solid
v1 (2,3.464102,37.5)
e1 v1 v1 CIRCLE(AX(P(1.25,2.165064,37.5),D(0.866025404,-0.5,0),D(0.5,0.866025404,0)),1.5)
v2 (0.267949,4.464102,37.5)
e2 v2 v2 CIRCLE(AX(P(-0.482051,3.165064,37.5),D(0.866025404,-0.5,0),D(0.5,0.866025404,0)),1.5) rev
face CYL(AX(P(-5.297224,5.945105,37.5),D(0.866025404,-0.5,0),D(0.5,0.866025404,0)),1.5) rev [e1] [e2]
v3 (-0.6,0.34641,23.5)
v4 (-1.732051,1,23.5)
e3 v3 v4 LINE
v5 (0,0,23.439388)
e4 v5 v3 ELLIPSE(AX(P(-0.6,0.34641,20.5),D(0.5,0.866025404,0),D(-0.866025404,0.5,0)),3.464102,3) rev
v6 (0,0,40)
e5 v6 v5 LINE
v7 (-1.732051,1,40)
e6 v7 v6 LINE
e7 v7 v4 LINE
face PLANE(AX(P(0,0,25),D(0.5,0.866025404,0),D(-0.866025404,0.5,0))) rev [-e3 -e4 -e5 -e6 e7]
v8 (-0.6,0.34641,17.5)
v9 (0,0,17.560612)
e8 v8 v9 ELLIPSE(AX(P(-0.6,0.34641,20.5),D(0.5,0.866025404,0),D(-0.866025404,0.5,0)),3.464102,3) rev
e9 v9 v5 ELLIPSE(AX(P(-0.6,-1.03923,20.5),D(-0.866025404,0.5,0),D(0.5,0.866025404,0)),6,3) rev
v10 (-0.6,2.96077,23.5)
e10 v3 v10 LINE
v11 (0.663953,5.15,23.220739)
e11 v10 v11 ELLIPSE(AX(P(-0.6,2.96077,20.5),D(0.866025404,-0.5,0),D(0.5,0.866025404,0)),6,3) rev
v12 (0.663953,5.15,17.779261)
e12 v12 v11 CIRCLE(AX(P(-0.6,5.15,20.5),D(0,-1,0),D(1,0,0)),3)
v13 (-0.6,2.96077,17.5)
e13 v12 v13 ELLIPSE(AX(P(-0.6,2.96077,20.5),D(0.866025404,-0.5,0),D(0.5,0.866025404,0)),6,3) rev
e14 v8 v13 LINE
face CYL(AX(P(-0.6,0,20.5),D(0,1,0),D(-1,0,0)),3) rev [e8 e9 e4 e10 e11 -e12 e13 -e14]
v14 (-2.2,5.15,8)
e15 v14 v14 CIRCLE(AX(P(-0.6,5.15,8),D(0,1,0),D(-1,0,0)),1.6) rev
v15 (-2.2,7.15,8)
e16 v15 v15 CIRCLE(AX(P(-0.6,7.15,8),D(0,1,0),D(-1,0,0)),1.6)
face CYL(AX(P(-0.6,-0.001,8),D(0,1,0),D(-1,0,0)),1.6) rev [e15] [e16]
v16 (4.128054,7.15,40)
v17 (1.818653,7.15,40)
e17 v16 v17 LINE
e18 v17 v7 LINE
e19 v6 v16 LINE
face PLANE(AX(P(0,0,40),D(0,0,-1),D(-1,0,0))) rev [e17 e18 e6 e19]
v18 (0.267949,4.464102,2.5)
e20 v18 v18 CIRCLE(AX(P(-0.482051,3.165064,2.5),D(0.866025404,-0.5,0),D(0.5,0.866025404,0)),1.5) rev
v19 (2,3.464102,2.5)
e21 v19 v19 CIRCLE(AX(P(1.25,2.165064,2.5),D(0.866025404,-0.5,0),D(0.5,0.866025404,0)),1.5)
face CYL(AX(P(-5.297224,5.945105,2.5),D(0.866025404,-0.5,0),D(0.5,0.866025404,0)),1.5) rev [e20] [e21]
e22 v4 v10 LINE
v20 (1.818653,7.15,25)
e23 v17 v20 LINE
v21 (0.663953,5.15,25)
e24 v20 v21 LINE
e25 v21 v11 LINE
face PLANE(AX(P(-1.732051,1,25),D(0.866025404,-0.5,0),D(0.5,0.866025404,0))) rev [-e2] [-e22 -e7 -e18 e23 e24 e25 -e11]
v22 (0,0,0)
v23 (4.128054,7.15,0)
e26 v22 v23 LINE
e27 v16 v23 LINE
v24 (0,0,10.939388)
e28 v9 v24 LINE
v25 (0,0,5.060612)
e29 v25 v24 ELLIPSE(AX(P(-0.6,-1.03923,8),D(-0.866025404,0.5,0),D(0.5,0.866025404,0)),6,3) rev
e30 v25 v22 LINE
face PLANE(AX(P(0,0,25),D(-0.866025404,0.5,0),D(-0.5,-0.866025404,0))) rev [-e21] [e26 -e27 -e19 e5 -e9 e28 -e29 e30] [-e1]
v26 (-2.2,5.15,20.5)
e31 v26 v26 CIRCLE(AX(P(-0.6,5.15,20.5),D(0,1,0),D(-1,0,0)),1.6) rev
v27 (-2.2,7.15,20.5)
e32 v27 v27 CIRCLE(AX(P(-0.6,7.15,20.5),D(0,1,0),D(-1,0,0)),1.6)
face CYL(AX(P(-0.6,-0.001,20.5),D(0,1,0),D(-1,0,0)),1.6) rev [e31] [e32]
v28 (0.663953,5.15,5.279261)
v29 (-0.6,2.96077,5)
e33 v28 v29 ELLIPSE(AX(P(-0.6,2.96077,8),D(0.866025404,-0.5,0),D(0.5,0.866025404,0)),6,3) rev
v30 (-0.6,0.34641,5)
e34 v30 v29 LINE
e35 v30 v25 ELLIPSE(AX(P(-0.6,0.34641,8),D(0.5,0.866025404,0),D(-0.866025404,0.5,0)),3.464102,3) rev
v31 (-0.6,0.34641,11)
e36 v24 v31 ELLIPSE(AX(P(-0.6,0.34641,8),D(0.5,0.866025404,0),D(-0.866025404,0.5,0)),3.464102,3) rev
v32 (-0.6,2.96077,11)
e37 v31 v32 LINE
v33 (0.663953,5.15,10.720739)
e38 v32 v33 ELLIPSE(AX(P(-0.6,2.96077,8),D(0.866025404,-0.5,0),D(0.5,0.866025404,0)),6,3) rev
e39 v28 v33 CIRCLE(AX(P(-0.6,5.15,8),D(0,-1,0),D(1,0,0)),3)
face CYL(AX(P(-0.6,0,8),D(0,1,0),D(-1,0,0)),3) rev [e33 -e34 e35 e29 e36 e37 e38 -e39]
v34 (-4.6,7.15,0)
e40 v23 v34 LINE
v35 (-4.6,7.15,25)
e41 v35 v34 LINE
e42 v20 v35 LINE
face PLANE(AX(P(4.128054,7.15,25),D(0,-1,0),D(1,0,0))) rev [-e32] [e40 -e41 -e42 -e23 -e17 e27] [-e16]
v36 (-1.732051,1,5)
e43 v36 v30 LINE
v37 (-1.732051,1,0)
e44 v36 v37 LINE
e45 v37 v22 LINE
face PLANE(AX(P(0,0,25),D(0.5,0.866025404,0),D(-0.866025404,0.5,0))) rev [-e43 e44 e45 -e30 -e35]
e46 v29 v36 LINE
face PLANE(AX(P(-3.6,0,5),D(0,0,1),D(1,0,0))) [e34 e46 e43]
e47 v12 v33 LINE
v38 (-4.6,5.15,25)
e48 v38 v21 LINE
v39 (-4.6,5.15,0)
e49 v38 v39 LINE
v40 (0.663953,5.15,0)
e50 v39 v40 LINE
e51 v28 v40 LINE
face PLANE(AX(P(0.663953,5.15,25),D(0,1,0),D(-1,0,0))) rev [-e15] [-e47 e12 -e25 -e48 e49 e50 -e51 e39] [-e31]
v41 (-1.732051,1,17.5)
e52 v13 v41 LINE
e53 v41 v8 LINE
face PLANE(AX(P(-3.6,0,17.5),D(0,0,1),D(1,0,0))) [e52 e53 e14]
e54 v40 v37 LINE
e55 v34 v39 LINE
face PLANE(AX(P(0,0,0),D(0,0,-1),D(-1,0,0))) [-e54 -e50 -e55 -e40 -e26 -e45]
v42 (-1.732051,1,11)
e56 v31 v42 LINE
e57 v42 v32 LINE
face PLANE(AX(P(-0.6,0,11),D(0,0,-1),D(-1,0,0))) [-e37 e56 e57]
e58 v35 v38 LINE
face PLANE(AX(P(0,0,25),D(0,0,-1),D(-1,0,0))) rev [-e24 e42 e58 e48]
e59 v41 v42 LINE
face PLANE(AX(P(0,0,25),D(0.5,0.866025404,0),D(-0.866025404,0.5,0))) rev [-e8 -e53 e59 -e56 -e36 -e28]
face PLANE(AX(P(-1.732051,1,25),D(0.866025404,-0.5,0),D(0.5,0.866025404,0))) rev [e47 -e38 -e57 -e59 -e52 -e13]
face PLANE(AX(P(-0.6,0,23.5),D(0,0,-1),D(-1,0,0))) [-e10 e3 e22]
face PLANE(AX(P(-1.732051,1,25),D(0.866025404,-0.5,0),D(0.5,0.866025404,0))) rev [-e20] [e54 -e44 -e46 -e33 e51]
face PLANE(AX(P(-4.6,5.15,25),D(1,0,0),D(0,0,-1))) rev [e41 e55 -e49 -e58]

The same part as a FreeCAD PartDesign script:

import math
import FreeCAD as App
import Part
import Sketcher
Q = App.Units.Quantity


def add_polygon(sketch, points):
    """Adds a closed chain of lines whose ends are joined by coincident constraints."""
    first, n = sketch.GeometryCount, len(points)
    for a, b in zip(points, points[1:] + points[:1]):
        sketch.addGeometry(Part.LineSegment(App.Vector(*a, 0), App.Vector(*b, 0)), False)
    for i in range(n):
        sketch.addConstraint(Sketcher.Constraint("Coincident", first + i, 2, first + (i + 1) % n, 1))

doc = App.newDocument("Part")
body = doc.addObject("PartDesign::Body", "Body")

# Sketch on XY plane
sketch1 = doc.addObject("Sketcher::SketchObject", "Sketch")
body.addObject(sketch1)
sketch1.AttachmentSupport = (doc.XY_Plane, [""])
sketch1.MapMode = "FlatFace"
add_polygon(sketch1, [(0, 0), (4.128054, 7.15), (-4.6, 7.15), (-4.6, 5.15), (0.663953, 5.15), (-1.732051, 1)])  # lines 0-5
sketch1.addConstraint([
    Sketcher.Constraint("Horizontal", 1),
    Sketcher.Constraint("Vertical", 2),
    Sketcher.Constraint("Horizontal", 3),
    Sketcher.Constraint("Coincident", 5, 2, -1, 1),
    Sketcher.Constraint("Parallel", 0, 4),
    Sketcher.Constraint("Perpendicular", 4, 5),
    Sketcher.Constraint("DistanceY", 2, 2, 2, 1, Q("2 mm")),
    Sketcher.Constraint("Angle", 0, Q("60 deg")),
    Sketcher.Constraint("Distance", 5, Q("2 mm")),
    Sketcher.Constraint("DistanceX", 1, 2, -1, 1, Q("4.6 mm")),
    Sketcher.Constraint("DistanceY", -1, 1, 0, 2, Q("7.15 mm")),
])
pad1 = doc.addObject("PartDesign::Pad", "Pad")
body.addObject(pad1)
pad1.Profile = sketch1
pad1.Length = 25

# Sketch on XY plane
sketch2 = doc.addObject("Sketcher::SketchObject", "Sketch001")
body.addObject(sketch2)
sketch2.AttachmentSupport = (doc.XY_Plane, [""])
sketch2.MapMode = "FlatFace"
sketch2.AttachmentOffset = App.Placement(App.Vector(0, 0, 25), App.Rotation())
add_polygon(sketch2, [(0, 0), (4.128054, 7.15), (1.818653, 7.15), (-1.732051, 1)])  # lines 0-3
sketch2.addConstraint([
    Sketcher.Constraint("Horizontal", 1),
    Sketcher.Constraint("Coincident", 3, 2, -1, 1),
    Sketcher.Constraint("Parallel", 0, 2),
    Sketcher.Constraint("Perpendicular", 2, 3),
    Sketcher.Constraint("Angle", 0, Q("60 deg")),
    Sketcher.Constraint("Distance", 3, Q("2 mm")),
    Sketcher.Constraint("DistanceY", -1, 1, 0, 2, Q("7.15 mm")),
])
pad2 = doc.addObject("PartDesign::Pad", "Pad001")
body.addObject(pad2)
pad2.Profile = sketch2
pad2.Length = 15

# Sketch on an angled plane
sketch3 = doc.addObject("Sketcher::SketchObject", "Sketch002")
body.addObject(sketch3)
sketch3.Placement = App.Placement(App.Vector(0, 0, 0), App.Rotation(App.Vector(0, 0, -1), App.Vector(0.5, 0.866025404, 0), App.Vector(0.866025404, -0.5, 0), "ZXY"))
sketch3.addGeometry(Part.Circle(App.Vector(-37.5, 2.5, 0), App.Vector(0, 0, 1), 1.5), False)
sketch3.addConstraint([
    Sketcher.Constraint("Diameter", 0, Q("3 mm")),
    Sketcher.Constraint("DistanceX", 0, 3, -1, 1, Q("37.5 mm")),
    Sketcher.Constraint("DistanceY", -1, 1, 0, 3, Q("2.5 mm")),
])
pocket1 = doc.addObject("PartDesign::Pocket", "Pocket")
body.addObject(pocket1)
pocket1.Profile = sketch3
pocket1.Type = "UpToFirst"

# Sketch on an angled plane
sketch4 = doc.addObject("Sketcher::SketchObject", "Sketch003")
body.addObject(sketch4)
sketch4.Placement = App.Placement(App.Vector(0, 0, 0), App.Rotation(App.Vector(0, 0, -1), App.Vector(0.5, 0.866025404, 0), App.Vector(0.866025404, -0.5, 0), "ZXY"))
sketch4.addGeometry(Part.Circle(App.Vector(-2.5, 2.5, 0), App.Vector(0, 0, 1), 1.5), False)
sketch4.addConstraint([
    Sketcher.Constraint("Diameter", 0, Q("3 mm")),
    Sketcher.Constraint("DistanceX", 0, 3, -1, 1, Q("2.5 mm")),
    Sketcher.Constraint("DistanceY", -1, 1, 0, 3, Q("2.5 mm")),
])
pocket2 = doc.addObject("PartDesign::Pocket", "Pocket001")
body.addObject(pocket2)
pocket2.Profile = sketch4
pocket2.Type = "UpToFirst"

# Sketch on XZ plane
sketch5 = doc.addObject("Sketcher::SketchObject", "Sketch004")
body.addObject(sketch5)
sketch5.AttachmentSupport = (doc.XZ_Plane, [""])
sketch5.MapMode = "FlatFace"
sketch5.AttachmentOffset = App.Placement(App.Vector(0, 0, -7.15), App.Rotation())
sketch5.addGeometry(Part.Circle(App.Vector(-0.6, 8, 0), App.Vector(0, 0, 1), 1.6), False)
sketch5.addConstraint([
    Sketcher.Constraint("Diameter", 0, Q("3.2 mm")),
    Sketcher.Constraint("DistanceY", -1, 1, 0, 3, Q("8 mm")),
    Sketcher.Constraint("DistanceX", 0, 3, -1, 1, Q("0.6 mm")),
])
pocket3 = doc.addObject("PartDesign::Pocket", "Pocket002")
body.addObject(pocket3)
pocket3.Profile = sketch5
pocket3.Length = 7.15
pocket3.Reversed = True

# Sketch on XZ plane
sketch6 = doc.addObject("Sketcher::SketchObject", "Sketch005")
body.addObject(sketch6)
sketch6.AttachmentSupport = (doc.XZ_Plane, [""])
sketch6.MapMode = "FlatFace"
sketch6.AttachmentOffset = App.Placement(App.Vector(0, 0, -7.15), App.Rotation())
sketch6.addGeometry(Part.Circle(App.Vector(-0.6, 20.5, 0), App.Vector(0, 0, 1), 1.6), False)
sketch6.addConstraint([
    Sketcher.Constraint("Diameter", 0, Q("3.2 mm")),
    Sketcher.Constraint("DistanceX", 0, 3, -1, 1, Q("0.6 mm")),
    Sketcher.Constraint("DistanceY", -1, 1, 0, 3, Q("20.5 mm")),
])
pocket4 = doc.addObject("PartDesign::Pocket", "Pocket003")
body.addObject(pocket4)
pocket4.Profile = sketch6
pocket4.Length = 7.15
pocket4.Reversed = True

# Sketch on XZ plane
sketch7 = doc.addObject("Sketcher::SketchObject", "Sketch006")
body.addObject(sketch7)
sketch7.AttachmentSupport = (doc.XZ_Plane, [""])
sketch7.MapMode = "FlatFace"
sketch7.AttachmentOffset = App.Placement(App.Vector(0, 0, -5.15), App.Rotation())
sketch7.addGeometry([
    Part.LineSegment(App.Vector(-0.6, 23.5, 0), App.Vector(-3.6, 23.5, 0)),  # 0
    Part.LineSegment(App.Vector(-3.6, 23.5, 0), App.Vector(-3.6, 17.5, 0)),  # 1
    Part.LineSegment(App.Vector(-3.6, 17.5, 0), App.Vector(-0.6, 17.5, 0)),  # 2
    Part.ArcOfCircle(Part.Circle(App.Vector(-0.6, 20.5, 0), App.Vector(0, 0, 1), 3), math.radians(-90), math.radians(90)),  # 3
    Part.LineSegment(App.Vector(-0.6, 11, 0), App.Vector(-3.6, 11, 0)),  # 4
    Part.LineSegment(App.Vector(-3.6, 11, 0), App.Vector(-3.6, 5, 0)),  # 5
    Part.LineSegment(App.Vector(-3.6, 5, 0), App.Vector(-0.6, 5, 0)),  # 6
    Part.ArcOfCircle(Part.Circle(App.Vector(-0.6, 8, 0), App.Vector(0, 0, 1), 3), math.radians(-90), math.radians(90)),  # 7
], False)
sketch7.addConstraint([
    Sketcher.Constraint("Coincident", 0, 2, 1, 1),
    Sketcher.Constraint("Coincident", 1, 2, 2, 1),
    Sketcher.Constraint("Tangent", 2, 2, 3, 1),
    Sketcher.Constraint("Tangent", 3, 2, 0, 1),
    Sketcher.Constraint("Coincident", 4, 2, 5, 1),
    Sketcher.Constraint("Coincident", 5, 2, 6, 1),
    Sketcher.Constraint("Tangent", 6, 2, 7, 1),
    Sketcher.Constraint("Tangent", 7, 2, 4, 1),
    Sketcher.Constraint("Horizontal", 0),
    Sketcher.Constraint("Vertical", 1),
    Sketcher.Constraint("Horizontal", 2),
    Sketcher.Constraint("Horizontal", 4),
    Sketcher.Constraint("Vertical", 5),
    Sketcher.Constraint("Horizontal", 6),
    Sketcher.Constraint("Equal", 3, 7),
    Sketcher.Constraint("Vertical", 3, 3, 7, 3),
    Sketcher.Constraint("Vertical", 1, 2, 4, 2),
    Sketcher.Constraint("Radius", 3, Q("3 mm")),
    Sketcher.Constraint("DistanceX", 0, 2, 0, 1, Q("3 mm")),
    Sketcher.Constraint("DistanceY", -1, 1, 7, 3, Q("8 mm")),
    Sketcher.Constraint("DistanceX", 3, 3, -1, 1, Q("0.6 mm")),
    Sketcher.Constraint("DistanceY", -1, 1, 3, 3, Q("20.5 mm")),
])
pocket5 = doc.addObject("PartDesign::Pocket", "Pocket004")
body.addObject(pocket5)
pocket5.Profile = sketch7
pocket5.Type = "ThroughAll"
pocket5.Reversed = True

doc.recompute()
